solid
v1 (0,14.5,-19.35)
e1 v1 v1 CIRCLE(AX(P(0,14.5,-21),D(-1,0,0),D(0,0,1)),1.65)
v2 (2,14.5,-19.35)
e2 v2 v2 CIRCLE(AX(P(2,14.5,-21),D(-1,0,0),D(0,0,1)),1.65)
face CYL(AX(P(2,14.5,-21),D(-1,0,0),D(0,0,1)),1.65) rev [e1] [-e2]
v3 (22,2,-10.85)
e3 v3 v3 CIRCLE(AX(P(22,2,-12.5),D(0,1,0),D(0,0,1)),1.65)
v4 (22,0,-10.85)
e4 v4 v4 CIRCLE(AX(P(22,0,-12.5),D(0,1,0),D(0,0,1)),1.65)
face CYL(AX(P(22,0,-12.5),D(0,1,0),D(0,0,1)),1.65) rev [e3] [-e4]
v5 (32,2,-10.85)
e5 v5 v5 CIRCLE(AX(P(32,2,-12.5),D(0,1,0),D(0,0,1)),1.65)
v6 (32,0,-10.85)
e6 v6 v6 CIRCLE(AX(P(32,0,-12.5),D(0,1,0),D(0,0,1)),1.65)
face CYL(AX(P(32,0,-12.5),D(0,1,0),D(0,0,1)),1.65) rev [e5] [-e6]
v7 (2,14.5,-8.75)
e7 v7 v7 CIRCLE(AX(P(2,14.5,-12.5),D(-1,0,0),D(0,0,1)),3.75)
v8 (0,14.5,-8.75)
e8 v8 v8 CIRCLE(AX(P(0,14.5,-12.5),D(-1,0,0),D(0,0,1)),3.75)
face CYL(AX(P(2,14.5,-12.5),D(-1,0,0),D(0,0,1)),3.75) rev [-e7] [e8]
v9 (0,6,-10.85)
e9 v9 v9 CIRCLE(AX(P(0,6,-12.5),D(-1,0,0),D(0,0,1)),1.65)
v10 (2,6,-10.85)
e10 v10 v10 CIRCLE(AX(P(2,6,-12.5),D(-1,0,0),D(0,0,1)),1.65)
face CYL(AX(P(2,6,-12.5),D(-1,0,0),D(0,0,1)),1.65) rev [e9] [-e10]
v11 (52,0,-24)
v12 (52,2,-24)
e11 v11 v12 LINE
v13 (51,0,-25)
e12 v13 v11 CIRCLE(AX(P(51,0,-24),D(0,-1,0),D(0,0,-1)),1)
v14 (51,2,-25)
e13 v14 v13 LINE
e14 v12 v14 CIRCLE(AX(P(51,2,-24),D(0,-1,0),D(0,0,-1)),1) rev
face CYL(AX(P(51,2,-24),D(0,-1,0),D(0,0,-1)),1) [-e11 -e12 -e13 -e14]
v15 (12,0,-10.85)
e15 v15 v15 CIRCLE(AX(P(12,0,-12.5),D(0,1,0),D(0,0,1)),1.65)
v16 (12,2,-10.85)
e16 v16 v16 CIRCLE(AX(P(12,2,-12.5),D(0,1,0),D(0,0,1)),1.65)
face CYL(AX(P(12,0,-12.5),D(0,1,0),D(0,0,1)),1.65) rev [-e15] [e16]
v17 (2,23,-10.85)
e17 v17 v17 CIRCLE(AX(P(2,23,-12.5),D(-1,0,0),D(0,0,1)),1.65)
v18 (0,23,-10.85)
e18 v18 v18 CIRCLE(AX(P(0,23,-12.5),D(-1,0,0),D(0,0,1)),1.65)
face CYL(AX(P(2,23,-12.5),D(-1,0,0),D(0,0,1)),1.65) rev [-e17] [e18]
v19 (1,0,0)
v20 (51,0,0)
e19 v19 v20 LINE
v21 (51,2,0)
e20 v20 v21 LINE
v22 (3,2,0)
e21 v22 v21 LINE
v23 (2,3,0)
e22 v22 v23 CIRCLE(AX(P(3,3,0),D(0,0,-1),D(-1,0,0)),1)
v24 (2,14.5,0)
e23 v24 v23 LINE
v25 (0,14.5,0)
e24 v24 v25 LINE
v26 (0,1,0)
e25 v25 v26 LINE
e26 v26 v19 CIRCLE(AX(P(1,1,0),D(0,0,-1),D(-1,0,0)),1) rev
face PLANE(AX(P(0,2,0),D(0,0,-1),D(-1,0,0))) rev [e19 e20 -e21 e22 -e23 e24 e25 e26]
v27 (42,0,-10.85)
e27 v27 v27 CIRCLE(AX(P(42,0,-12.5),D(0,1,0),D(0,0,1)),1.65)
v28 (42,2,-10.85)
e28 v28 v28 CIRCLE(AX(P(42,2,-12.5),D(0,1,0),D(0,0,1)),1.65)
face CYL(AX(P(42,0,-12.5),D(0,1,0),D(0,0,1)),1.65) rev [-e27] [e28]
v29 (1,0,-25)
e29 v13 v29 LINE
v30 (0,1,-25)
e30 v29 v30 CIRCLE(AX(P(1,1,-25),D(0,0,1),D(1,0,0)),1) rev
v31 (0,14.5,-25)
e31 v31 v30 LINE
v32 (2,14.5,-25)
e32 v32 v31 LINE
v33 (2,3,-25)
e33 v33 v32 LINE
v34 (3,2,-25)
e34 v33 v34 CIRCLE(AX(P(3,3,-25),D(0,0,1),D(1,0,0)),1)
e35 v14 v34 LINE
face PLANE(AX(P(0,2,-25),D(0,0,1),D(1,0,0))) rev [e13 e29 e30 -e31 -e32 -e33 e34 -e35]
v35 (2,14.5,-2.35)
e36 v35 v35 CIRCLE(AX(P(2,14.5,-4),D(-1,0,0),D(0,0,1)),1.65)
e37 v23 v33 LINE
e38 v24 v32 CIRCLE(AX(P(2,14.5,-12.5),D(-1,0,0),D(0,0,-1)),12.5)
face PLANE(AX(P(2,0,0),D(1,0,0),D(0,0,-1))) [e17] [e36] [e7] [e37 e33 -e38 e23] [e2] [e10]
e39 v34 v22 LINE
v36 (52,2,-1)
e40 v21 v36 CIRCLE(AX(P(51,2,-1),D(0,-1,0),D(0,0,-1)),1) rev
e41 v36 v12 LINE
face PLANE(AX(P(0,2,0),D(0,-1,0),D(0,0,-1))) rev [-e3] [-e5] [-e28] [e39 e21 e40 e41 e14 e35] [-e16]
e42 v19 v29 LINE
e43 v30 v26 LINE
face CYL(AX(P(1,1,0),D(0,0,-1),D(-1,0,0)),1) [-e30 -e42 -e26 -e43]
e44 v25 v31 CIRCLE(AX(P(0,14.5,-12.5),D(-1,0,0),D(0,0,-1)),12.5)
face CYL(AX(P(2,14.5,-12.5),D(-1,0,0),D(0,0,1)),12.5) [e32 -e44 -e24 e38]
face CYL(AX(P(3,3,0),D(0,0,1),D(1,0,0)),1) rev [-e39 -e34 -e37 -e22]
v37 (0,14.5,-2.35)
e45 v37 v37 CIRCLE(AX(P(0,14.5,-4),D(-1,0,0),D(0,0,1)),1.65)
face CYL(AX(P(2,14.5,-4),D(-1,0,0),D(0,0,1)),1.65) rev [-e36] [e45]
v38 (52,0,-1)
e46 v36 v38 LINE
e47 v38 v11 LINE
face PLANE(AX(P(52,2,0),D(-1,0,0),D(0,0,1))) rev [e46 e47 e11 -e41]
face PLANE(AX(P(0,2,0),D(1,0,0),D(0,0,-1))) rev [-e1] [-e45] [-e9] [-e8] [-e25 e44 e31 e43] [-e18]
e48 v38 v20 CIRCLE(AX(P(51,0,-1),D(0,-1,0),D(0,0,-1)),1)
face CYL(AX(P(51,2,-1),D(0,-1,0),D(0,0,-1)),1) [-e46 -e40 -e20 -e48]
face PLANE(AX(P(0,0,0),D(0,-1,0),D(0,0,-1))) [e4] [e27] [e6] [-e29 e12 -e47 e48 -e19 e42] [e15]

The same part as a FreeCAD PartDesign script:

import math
import FreeCAD as App
import Part
import Sketcher

V = App.Vector
Q = App.Units.Quantity


def edges_at(feature, points):
    """Names of the edges that pass closest to the given points."""
    edges = feature.Shape.Edges
    near = lambda p: min(range(len(edges)), key=lambda i: edges[i].distToShape(Part.Vertex(*p))[0])
    return sorted({f"Edge{near(p) + 1}" for p in points})


def add_polygon(sketch, points):
    """Adds a closed chain of lines whose ends are joined by coincident constraints."""
    first, n = sketch.GeometryCount, len(points)
    for a, b in zip(points, points[1:] + points[:1]):
        sketch.addGeometry(Part.LineSegment(App.Vector(*a, 0), App.Vector(*b, 0)), False)
    for i in range(n):
        sketch.addConstraint(Sketcher.Constraint("Coincident", first + i, 2, first + (i + 1) % n, 1))

doc = App.newDocument("Part")
body = doc.addObject("PartDesign::Body", "Body")

# Sketch on XZ plane
sketch1 = doc.addObject("Sketcher::SketchObject", "Sketch")
body.addObject(sketch1)
sketch1.AttachmentSupport = (doc.XZ_Plane, [""])
sketch1.MapMode = "FlatFace"
add_polygon(sketch1, [(0, -25), (0, 0), (52, 0), (52, -25)])  # lines 0-3
sketch1.addConstraint([
    Sketcher.Constraint("Vertical", 0),
    Sketcher.Constraint("Horizontal", 1),
    Sketcher.Constraint("Vertical", 2),
    Sketcher.Constraint("Horizontal", 3),
    Sketcher.Constraint("Coincident", 0, 2, -1, 1),
    Sketcher.Constraint("DistanceX", 1, 1, 1, 2, Q("52 mm")),
    Sketcher.Constraint("DistanceY", 0, 1, 0, 2, Q("25 mm")),
])
pad1 = doc.addObject("PartDesign::Pad", "Pad")
body.addObject(pad1)
pad1.Profile = sketch1
pad1.Length = 2
pad1.Reversed = True

# Sketch on YZ plane
sketch2 = doc.addObject("Sketcher::SketchObject", "Sketch001")
body.addObject(sketch2)
sketch2.AttachmentSupport = (doc.YZ_Plane, [""])
sketch2.MapMode = "FlatFace"
add_polygon(sketch2, [(14.5, 0), (0, 0), (0, -25), (14.5, -25)])  # lines 0-3
sketch2.addConstraint([
    Sketcher.Constraint("Horizontal", 0),
    Sketcher.Constraint("Vertical", 1),
    Sketcher.Constraint("Horizontal", 2),
    Sketcher.Constraint("Vertical", 3),
    Sketcher.Constraint("Coincident", 0, 2, -1, 1),
    Sketcher.Constraint("DistanceY", 1, 2, 1, 1, Q("25 mm")),
    Sketcher.Constraint("DistanceX", 0, 2, 0, 1, Q("14.5 mm")),
])
pad2 = doc.addObject("PartDesign::Pad", "Pad001")
body.addObject(pad2)
pad2.Profile = sketch2
pad2.Length = 2

# Sketch on YZ plane
sketch3 = doc.addObject("Sketcher::SketchObject", "Sketch002")
body.addObject(sketch3)
sketch3.AttachmentSupport = (doc.YZ_Plane, [""])
sketch3.MapMode = "FlatFace"
sketch3.addGeometry([
    Part.LineSegment(V(0, -25, 0), V(0, 0, 0)),
    Part.LineSegment(V(0, 0, 0), V(14.5, 0, 0)),
    Part.ArcOfCircle(Part.Circle(V(14.5, -12.5, 0), V(0, 0, 1), 12.5), math.radians(-90), math.radians(90)),
    Part.LineSegment(V(14.5, -25, 0), V(0, -25, 0)),
], False)
sketch3.addConstraint([
    Sketcher.Constraint("Coincident", 0, 2, 1, 1),
    Sketcher.Constraint("Tangent", 1, 2, 2, 2),
    Sketcher.Constraint("Tangent", 2, 1, 3, 1),
    Sketcher.Constraint("Coincident", 3, 2, 0, 1),
    Sketcher.Constraint("Vertical", 0),
    Sketcher.Constraint("Horizontal", 1),
    Sketcher.Constraint("Horizontal", 3),
    Sketcher.Constraint("Coincident", 0, 2, -1, 1),
    Sketcher.Constraint("Radius", 2, Q("12.5 mm")),
    Sketcher.Constraint("DistanceX", 1, 1, 1, 2, Q("14.5 mm")),
])
pad3 = doc.addObject("PartDesign::Pad", "Pad002")
body.addObject(pad3)
pad3.Profile = sketch3
pad3.Length = 2

# Sketch on XZ plane
sketch4 = doc.addObject("Sketcher::SketchObject", "Sketch003")
body.addObject(sketch4)
sketch4.AttachmentSupport = (doc.XZ_Plane, [""])
sketch4.MapMode = "FlatFace"
sketch4.AttachmentOffset = App.Placement(V(0, 0, -2), App.Rotation())
sketch4.addGeometry([
    Part.Circle(V(12, -12.5, 0), V(0, 0, 1), 1.65),
    Part.Circle(V(22, -12.5, 0), V(0, 0, 1), 1.65),
    Part.Circle(V(32, -12.5, 0), V(0, 0, 1), 1.65),
    Part.Circle(V(42, -12.5, 0), V(0, 0, 1), 1.65),
], False)
sketch4.addConstraint([
    Sketcher.Constraint("Equal", 0, 1),
    Sketcher.Constraint("Equal", 1, 2),
    Sketcher.Constraint("Equal", 2, 3),
    Sketcher.Constraint("Horizontal", 0, 3, 1, 3),
    Sketcher.Constraint("Horizontal", 1, 3, 2, 3),
    Sketcher.Constraint("Horizontal", 2, 3, 3, 3),
    Sketcher.Constraint("Diameter", 0, Q("3.3 mm")),
    Sketcher.Constraint("DistanceX", -1, 1, 0, 3, Q("12 mm")),
    Sketcher.Constraint("DistanceX", -1, 1, 1, 3, Q("22 mm")),
    Sketcher.Constraint("DistanceX", -1, 1, 2, 3, Q("32 mm")),
    Sketcher.Constraint("DistanceX", -1, 1, 3, 3, Q("42 mm")),
    Sketcher.Constraint("DistanceY", 0, 3, -1, 1, Q("12.5 mm")),
])
pocket1 = doc.addObject("PartDesign::Pocket", "Pocket")
body.addObject(pocket1)
pocket1.Profile = sketch4
pocket1.Length = 2
pocket1.Reversed = True

# Sketch on YZ plane
sketch5 = doc.addObject("Sketcher::SketchObject", "Sketch004")
body.addObject(sketch5)
sketch5.AttachmentSupport = (doc.YZ_Plane, [""])
sketch5.MapMode = "FlatFace"
sketch5.addGeometry([
    Part.Circle(V(14.5, -12.5, 0), V(0, 0, 1), 3.75),  # 0
    Part.Circle(V(14.5, -21, 0), V(0, 0, 1), 1.65),  # 1
    Part.Circle(V(14.5, -4, 0), V(0, 0, 1), 1.65),  # 2
    Part.Circle(V(6, -12.5, 0), V(0, 0, 1), 1.65),  # 3
    Part.Circle(V(23, -12.5, 0), V(0, 0, 1), 1.65),  # 4
], False)
sketch5.addConstraint([
    Sketcher.Constraint("Equal", 1, 2),
    Sketcher.Constraint("Equal", 2, 3),
    Sketcher.Constraint("Equal", 3, 4),
    Sketcher.Constraint("Horizontal", 0, 3, 3, 3),
    Sketcher.Constraint("Horizontal", 3, 3, 4, 3),
    Sketcher.Constraint("Vertical", 0, 3, 1, 3),
    Sketcher.Constraint("Vertical", 1, 3, 2, 3),
    Sketcher.Constraint("Diameter", 0, Q("7.5 mm")),
    Sketcher.Constraint("Diameter", 1, Q("3.3 mm")),
    Sketcher.Constraint("DistanceY", 1, 3, -1, 1, Q("21 mm")),
    Sketcher.Constraint("DistanceY", 2, 3, -1, 1, Q("4 mm")),
    Sketcher.Constraint("DistanceX", -1, 1, 3, 3, Q("6 mm")),
    Sketcher.Constraint("DistanceX", -1, 1, 4, 3, Q("23 mm")),
    Sketcher.Constraint("DistanceX", -1, 1, 0, 3, Q("14.5 mm")),
    Sketcher.Constraint("DistanceY", 0, 3, -1, 1, Q("12.5 mm")),
])
pocket2 = doc.addObject("PartDesign::Pocket", "Pocket001")
body.addObject(pocket2)
pocket2.Profile = sketch5
pocket2.Length = 2
pocket2.Reversed = True
doc.recompute()

fillet = doc.addObject("PartDesign::Fillet", "Fillet")
body.addObject(fillet)
fillet.Base = (pocket2, edges_at(pocket2, [
    (2, 2, -12.5),
    (0, 0, -12.5),
    (52, 1, -25),
    (52, 1, 0),
]))
fillet.Radius = 1

doc.recompute()
